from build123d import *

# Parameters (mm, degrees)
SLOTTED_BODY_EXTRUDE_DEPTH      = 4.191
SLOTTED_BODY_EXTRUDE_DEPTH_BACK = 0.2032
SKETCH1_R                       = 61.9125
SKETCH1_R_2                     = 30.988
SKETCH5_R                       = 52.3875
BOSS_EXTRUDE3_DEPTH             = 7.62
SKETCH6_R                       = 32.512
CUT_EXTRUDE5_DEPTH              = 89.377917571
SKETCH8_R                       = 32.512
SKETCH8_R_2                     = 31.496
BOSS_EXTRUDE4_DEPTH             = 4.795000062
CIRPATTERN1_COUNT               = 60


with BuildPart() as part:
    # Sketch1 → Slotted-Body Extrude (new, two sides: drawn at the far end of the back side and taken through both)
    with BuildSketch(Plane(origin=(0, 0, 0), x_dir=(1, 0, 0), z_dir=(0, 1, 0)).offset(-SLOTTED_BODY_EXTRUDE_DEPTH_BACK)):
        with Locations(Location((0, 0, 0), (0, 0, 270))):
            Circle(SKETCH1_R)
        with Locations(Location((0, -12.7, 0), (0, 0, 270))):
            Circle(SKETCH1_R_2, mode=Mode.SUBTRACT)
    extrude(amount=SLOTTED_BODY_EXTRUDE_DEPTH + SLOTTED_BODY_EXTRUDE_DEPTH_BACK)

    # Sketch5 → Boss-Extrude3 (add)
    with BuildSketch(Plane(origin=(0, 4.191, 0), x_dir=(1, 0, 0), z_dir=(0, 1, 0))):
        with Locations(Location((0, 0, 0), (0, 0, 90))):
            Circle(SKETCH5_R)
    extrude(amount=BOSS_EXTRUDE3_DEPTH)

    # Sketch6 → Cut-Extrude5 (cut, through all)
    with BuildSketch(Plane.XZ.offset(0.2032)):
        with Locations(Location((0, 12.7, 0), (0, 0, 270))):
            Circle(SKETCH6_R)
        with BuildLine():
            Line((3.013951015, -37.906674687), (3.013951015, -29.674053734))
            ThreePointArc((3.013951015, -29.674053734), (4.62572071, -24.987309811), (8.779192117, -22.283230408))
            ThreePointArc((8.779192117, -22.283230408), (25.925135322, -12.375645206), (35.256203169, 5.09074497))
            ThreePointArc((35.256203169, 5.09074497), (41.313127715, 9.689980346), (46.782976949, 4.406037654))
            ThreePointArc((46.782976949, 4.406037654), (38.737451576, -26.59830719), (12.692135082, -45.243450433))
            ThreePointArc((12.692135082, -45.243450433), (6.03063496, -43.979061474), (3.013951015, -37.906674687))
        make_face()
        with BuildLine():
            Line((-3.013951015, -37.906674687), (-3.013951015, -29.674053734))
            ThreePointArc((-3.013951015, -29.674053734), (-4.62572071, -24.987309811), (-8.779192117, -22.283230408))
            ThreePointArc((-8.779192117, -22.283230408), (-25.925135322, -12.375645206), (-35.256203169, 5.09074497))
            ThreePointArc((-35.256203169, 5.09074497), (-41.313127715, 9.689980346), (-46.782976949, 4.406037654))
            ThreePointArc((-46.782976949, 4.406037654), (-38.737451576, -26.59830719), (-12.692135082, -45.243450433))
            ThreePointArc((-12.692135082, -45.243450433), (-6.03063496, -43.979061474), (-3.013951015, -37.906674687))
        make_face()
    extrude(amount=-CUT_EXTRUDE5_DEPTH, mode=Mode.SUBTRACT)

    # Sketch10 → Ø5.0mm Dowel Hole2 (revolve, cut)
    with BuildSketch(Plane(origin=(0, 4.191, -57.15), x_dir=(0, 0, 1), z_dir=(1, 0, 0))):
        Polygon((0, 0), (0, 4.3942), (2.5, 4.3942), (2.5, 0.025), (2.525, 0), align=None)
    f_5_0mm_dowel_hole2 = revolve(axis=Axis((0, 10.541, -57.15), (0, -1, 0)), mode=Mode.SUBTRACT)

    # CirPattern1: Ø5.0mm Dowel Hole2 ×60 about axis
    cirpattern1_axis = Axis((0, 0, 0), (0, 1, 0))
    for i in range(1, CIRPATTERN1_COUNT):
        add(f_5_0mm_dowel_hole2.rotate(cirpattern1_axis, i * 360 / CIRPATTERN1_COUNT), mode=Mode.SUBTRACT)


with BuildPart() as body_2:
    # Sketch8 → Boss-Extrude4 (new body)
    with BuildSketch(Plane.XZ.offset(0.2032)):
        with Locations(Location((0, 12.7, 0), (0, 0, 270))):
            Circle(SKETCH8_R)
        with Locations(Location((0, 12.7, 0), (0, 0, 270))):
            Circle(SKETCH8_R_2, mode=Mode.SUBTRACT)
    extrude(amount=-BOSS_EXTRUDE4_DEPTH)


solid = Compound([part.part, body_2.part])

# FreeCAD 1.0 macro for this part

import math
import FreeCAD as App
import Part
import Sketcher

V = App.Vector
Q = App.Units.Quantity


def add_polygon(sketch, points):
    """Adds a closed chain of lines whose ends are joined by coincident constraints."""
    first, n = sketch.GeometryCount, len(points)
    for a, b in zip(points, points[1:] + points[:1]):
        sketch.addGeometry(Part.LineSegment(App.Vector(*a, 0), App.Vector(*b, 0)), False)
    for i in range(n):
        sketch.addConstraint(Sketcher.Constraint("Coincident", first + i, 2, first + (i + 1) % n, 1))

doc = App.newDocument("Part")
body = doc.addObject("PartDesign::Body", "Body")

# Sketch on XZ plane
sketch1 = body.newObject("Sketcher::SketchObject", "Sketch")
sketch1.AttachmentSupport = (doc.getObject("XZ_Plane"), [""])
sketch1.MapMode = "FlatFace"
sketch1.addGeometry(Part.Circle(V(0, 0, 0), V(0, 0, 1), 62), False)
sketch1.addGeometry(Part.Circle(V(0, 13, 0), V(0, 0, 1), 31), False)
sketch1.addConstraint(Sketcher.Constraint("Coincident", 0, 3, -1, 1))
sketch1.addConstraint(Sketcher.Constraint("PointOnObject", 1, 3, -2))
sketch1.addConstraint(Sketcher.Constraint("Diameter", 1, Q("2.44 in")))
sketch1.addConstraint(Sketcher.Constraint("Diameter", 0, Q("4.875 in")))
sketch1.addConstraint(Sketcher.Constraint("DistanceY", -1, 1, 1, 3, Q("0.5 in")))
pad1 = body.newObject("PartDesign::Pad", "Pad")
pad1.Profile = sketch1
pad1.Type = "TwoLengths"
pad1.Length = Q("0.165 in")
pad1.Length2 = Q("0.008 in")
pad1.Reversed = True

# Sketch on XZ plane
sketch2 = body.newObject("Sketcher::SketchObject", "Sketch001")
sketch2.AttachmentSupport = (doc.getObject("XZ_Plane"), [""])
sketch2.MapMode = "FlatFace"
sketch2.AttachmentOffset = App.Placement(V(0, 0, -0.165 * 25.4), App.Rotation())
sketch2.addGeometry(Part.Circle(V(0, 0, 0), V(0, 0, 1), 52), False)
sketch2.addConstraint(Sketcher.Constraint("Coincident", 0, 3, -1, 1))
sketch2.addConstraint(Sketcher.Constraint("Diameter", 0, Q("4.125 in")))
pad2 = body.newObject("PartDesign::Pad", "Pad001")
pad2.Profile = sketch2
pad2.Length = Q("0.3 in")
pad2.Reversed = True

# Sketch on XZ plane
sketch3 = body.newObject("Sketcher::SketchObject", "Sketch002")
sketch3.AttachmentSupport = (doc.getObject("XZ_Plane"), [""])
sketch3.MapMode = "FlatFace"
sketch3.AttachmentOffset = App.Placement(V(0, 0, 0.008 * 25.4), App.Rotation())
sketch3.addGeometry(Part.Circle(V(0, 13, 0), V(0, 0, 1), 33), False)
sketch3.addGeometry(Part.LineSegment(V(3, -30, 0), V(3, -38, 0)), False)
sketch3.addGeometry(Part.ArcOfCircle(Part.Circle(V(11, -38, 0), V(0, 0, 1), 8), math.radians(-180), math.radians(-74)), False)
sketch3.addGeometry(Part.ArcOfCircle(Part.Circle(V(0, 0, 0), V(0, 0, 1), 47), math.radians(-74), math.radians(5)), False)
sketch3.addGeometry(Part.ArcOfCircle(Part.Circle(V(41, 4, 0), V(0, 0, 1), 6), math.radians(5), math.radians(168)), False)
sketch3.addGeometry(Part.ArcOfCircle(Part.Circle(V(0, 13, 0), V(0, 0, 1), 36), math.radians(-76), math.radians(-12)), False)
sketch3.addGeometry(Part.ArcOfCircle(Part.Circle(V(11, -30, 0), V(0, 0, 1), 8), math.radians(104), math.radians(180)), False)
sketch3.addGeometry(Part.LineSegment(V(-3, -38, 0), V(-3, -30, 0)), False)
sketch3.addGeometry(Part.ArcOfCircle(Part.Circle(V(-11, -30, 0), V(0, 0, 1), 8), math.radians(0), math.radians(76)), False)
sketch3.addGeometry(Part.ArcOfCircle(Part.Circle(V(0, 13, 0), V(0, 0, 1), 36), math.radians(-168), math.radians(-104)), False)
sketch3.addGeometry(Part.ArcOfCircle(Part.Circle(V(-41, 4, 0), V(0, 0, 1), 6), math.radians(12), math.radians(175)), False)
sketch3.addGeometry(Part.ArcOfCircle(Part.Circle(V(0, 0, 0), V(0, 0, 1), 47), math.radians(175), math.radians(254)), False)
sketch3.addGeometry(Part.ArcOfCircle(Part.Circle(V(-11, -38, 0), V(0, 0, 1), 8), math.radians(-106), math.radians(0)), False)
sketch3.addConstraint(Sketcher.Constraint("Tangent", 1, 2, 2, 1))
sketch3.addConstraint(Sketcher.Constraint("Tangent", 2, 2, 3, 1))
sketch3.addConstraint(Sketcher.Constraint("Tangent", 3, 2, 4, 1))
sketch3.addConstraint(Sketcher.Constraint("Tangent", 4, 2, 5, 2))
sketch3.addConstraint(Sketcher.Constraint("Tangent", 5, 1, 6, 1))
sketch3.addConstraint(Sketcher.Constraint("Tangent", 6, 2, 1, 1))
sketch3.addConstraint(Sketcher.Constraint("Tangent", 7, 2, 8, 1))
sketch3.addConstraint(Sketcher.Constraint("Tangent", 8, 2, 9, 2))
sketch3.addConstraint(Sketcher.Constraint("Tangent", 9, 1, 10, 1))
sketch3.addConstraint(Sketcher.Constraint("Tangent", 10, 2, 11, 1))
sketch3.addConstraint(Sketcher.Constraint("Tangent", 11, 2, 12, 1))
sketch3.addConstraint(Sketcher.Constraint("Tangent", 12, 2, 7, 1))
sketch3.addConstraint(Sketcher.Constraint("Vertical", 1))
sketch3.addConstraint(Sketcher.Constraint("Vertical", 7))
sketch3.addConstraint(Sketcher.Constraint("Coincident", 3, 3, -1, 1))
sketch3.addConstraint(Sketcher.Constraint("Coincident", 11, 3, -1, 1))
sketch3.addConstraint(Sketcher.Constraint("Coincident", 5, 3, 0, 3))
sketch3.addConstraint(Sketcher.Constraint("Coincident", 9, 3, 0, 3))
sketch3.addConstraint(Sketcher.Constraint("Equal", 2, 6))
sketch3.addConstraint(Sketcher.Constraint("Equal", 6, 8))
sketch3.addConstraint(Sketcher.Constraint("Equal", 5, 9))
sketch3.addConstraint(Sketcher.Constraint("Equal", 4, 10))
sketch3.addConstraint(Sketcher.Constraint("Equal", 3, 11))
sketch3.addConstraint(Sketcher.Constraint("Equal", 8, 12))
sketch3.addConstraint(Sketcher.Constraint("Symmetric", 6, 3, 8, 3, -2))
sketch3.addConstraint(Sketcher.Constraint("Radius", 2, Q("0.3 in")))
sketch3.addConstraint(Sketcher.Constraint("Diameter", 0, Q("2.56 in")))
sketch3.addConstraint(Sketcher.Constraint("Radius", 3, Q("1.85 in")))
sketch3.addConstraint(Sketcher.Constraint("Radius", 4, Q("0.23 in")))
sketch3.addConstraint(Sketcher.Constraint("Radius", 5, Q("1.42 in")))
sketch3.addConstraint(Sketcher.Constraint("DistanceY", -1, 1, 0, 3, Q("0.5 in")))
sketch3.addConstraint(Sketcher.Constraint("DistanceY", 1, 2, 1, 1, 8.232621))
pocket1 = body.newObject("PartDesign::Pocket", "Pocket")
pocket1.Profile = sketch3
pocket1.Type = "ThroughAll"

# Sketch on YZ plane
sketch4 = body.newObject("Sketcher::SketchObject", "Sketch003")
sketch4.AttachmentSupport = (doc.getObject("YZ_Plane"), [""])
sketch4.MapMode = "FlatFace"
add_polygon(sketch4, [(-0.203, -57.15), (4.191, -57.15), (4.191, -54.625), (4.166, -54.65), (-0.203, -54.65)])  # lines 0-4
sketch4.addGeometry(Part.LineSegment(V(4.191, -57.15, 0), V(-0.203, -57.15, 0)), True)  # axis
sketch4.addConstraint(Sketcher.Constraint("Horizontal", 0))
sketch4.addConstraint(Sketcher.Constraint("Vertical", 1))
sketch4.addConstraint(Sketcher.Constraint("Horizontal", 3))
sketch4.addConstraint(Sketcher.Constraint("Vertical", 4))
sketch4.addConstraint(Sketcher.Constraint("Horizontal", 5))
sketch4.addConstraint(Sketcher.Constraint("Coincident", 5, 1, 0, 2))
sketch4.addConstraint(Sketcher.Constraint("Vertical", 3, 2, 5, 2))
sketch4.addConstraint(Sketcher.Constraint("Angle", 2, Q("-135 deg")))
sketch4.addConstraint(Sketcher.Constraint("DistanceX", 0, 1, 0, 2, Q("0.173 in")))
sketch4.addConstraint(Sketcher.Constraint("DistanceY", 0, 2, -1, 1, Q("2.25 in")))
sketch4.addConstraint(Sketcher.Constraint("DistanceX", -1, 1, 0, 2, Q("0.165 in")))
sketch4.addConstraint(Sketcher.Constraint("DistanceX", 3, 2, 3, 1, 4.3692))
sketch4.addConstraint(Sketcher.Constraint("DistanceY", 1, 1, 1, 2, 2.525))
groove = body.newObject("PartDesign::Groove", "Groove")
groove.Profile = sketch4
groove.ReferenceAxis = (sketch4, ["Axis0"])
groove.Angle = 360
doc.recompute()

polarpattern = body.newObject("PartDesign::PolarPattern", "PolarPattern")
polarpattern.Originals = [groove]
polarpattern.Axis = (doc.getObject("Y_Axis"), [""])
polarpattern.Angle = 360
polarpattern.Occurrences = 60
body.Tip = polarpattern
body2 = doc.addObject("PartDesign::Body", "Body001")

# Sketch on XZ plane
sketch5 = body2.newObject("Sketcher::SketchObject", "Sketch004")
sketch5.AttachmentSupport = (doc.getObject("XZ_Plane001"), [""])
sketch5.MapMode = "FlatFace"
sketch5.AttachmentOffset = App.Placement(V(0, 0, 0.008 * 25.4), App.Rotation())
sketch5.addGeometry(Part.Circle(V(0, 13, 0), V(0, 0, 1), 33), False)
sketch5.addGeometry(Part.Circle(V(0, 13, 0), V(0, 0, 1), 31), False)
sketch5.addConstraint(Sketcher.Constraint("Coincident", 1, 3, 0, 3))
sketch5.addConstraint(Sketcher.Constraint("PointOnObject", 0, 3, -2))
sketch5.addConstraint(Sketcher.Constraint("Diameter", 0, Q("2.56 in")))
sketch5.addConstraint(Sketcher.Constraint("Diameter", 1, Q("2.48 in")))
sketch5.addConstraint(Sketcher.Constraint("DistanceY", -1, 1, 0, 3, Q("0.5 in")))
pad3 = body2.newObject("PartDesign::Pad", "Pad002")
pad3.Profile = sketch5
pad3.Length = 4.795
pad3.Reversed = True

doc.recompute()
